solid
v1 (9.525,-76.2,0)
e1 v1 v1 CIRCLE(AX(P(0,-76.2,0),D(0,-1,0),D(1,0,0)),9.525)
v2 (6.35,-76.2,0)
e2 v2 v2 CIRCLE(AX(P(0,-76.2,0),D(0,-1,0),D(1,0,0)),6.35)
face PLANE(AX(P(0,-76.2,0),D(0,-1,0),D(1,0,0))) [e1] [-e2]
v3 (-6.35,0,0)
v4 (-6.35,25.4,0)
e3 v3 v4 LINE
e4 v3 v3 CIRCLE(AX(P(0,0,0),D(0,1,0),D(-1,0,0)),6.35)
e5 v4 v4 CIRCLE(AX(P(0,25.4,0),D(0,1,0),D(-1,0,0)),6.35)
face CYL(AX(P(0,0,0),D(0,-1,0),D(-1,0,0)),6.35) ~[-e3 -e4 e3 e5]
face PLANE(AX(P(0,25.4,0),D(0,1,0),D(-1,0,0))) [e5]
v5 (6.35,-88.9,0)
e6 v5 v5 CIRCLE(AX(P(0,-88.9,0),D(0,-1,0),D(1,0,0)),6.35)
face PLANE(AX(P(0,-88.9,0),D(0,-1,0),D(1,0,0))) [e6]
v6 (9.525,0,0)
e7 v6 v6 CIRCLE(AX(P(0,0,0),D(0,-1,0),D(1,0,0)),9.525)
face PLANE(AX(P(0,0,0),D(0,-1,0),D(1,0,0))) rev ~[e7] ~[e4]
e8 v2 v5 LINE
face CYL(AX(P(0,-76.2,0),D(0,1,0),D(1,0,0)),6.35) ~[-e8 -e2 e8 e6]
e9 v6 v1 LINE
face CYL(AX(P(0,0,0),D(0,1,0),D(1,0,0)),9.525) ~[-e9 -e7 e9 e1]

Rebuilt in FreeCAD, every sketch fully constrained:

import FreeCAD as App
import Part
import Sketcher
from FreeCAD import Vector
Q = App.Units.Quantity

doc = App.newDocument("Part")
body = doc.addObject("PartDesign::Body", "Body")

# Sketch on XZ plane
sketch1 = body.newObject("Sketcher::SketchObject", "Sketch")
sketch1.AttachmentSupport = (doc.getObject("XZ_Plane"), [""])
sketch1.MapMode = "FlatFace"
sketch1.addGeometry(Part.Circle(Vector(0, 0, 0), Vector(0, 0, 1), 10), False)
sketch1.addConstraint(Sketcher.Constraint("Coincident", 0, 3, -1, 1))
sketch1.addConstraint(Sketcher.Constraint("Diameter", 0, Q("0.75 in")))
pad1 = body.newObject("PartDesign::Pad", "Pad")
pad1.Profile = sketch1
pad1.Length = Q("3 in")

# Sketch on XZ plane
sketch2 = body.newObject("Sketcher::SketchObject", "Sketch001")
sketch2.AttachmentSupport = (doc.getObject("XZ_Plane"), [""])
sketch2.MapMode = "FlatFace"
sketch2.AttachmentOffset = App.Placement(Vector(0, 0, 3 * 25.4), App.Rotation())
sketch2.addGeometry(Part.Circle(Vector(0, 0, 0), Vector(0, 0, 1), 6), False)
sketch2.addConstraint(Sketcher.Constraint("Coincident", 0, 3, -1, 1))
sketch2.addConstraint(Sketcher.Constraint("Diameter", 0, Q("0.5 in")))
pad2 = body.newObject("PartDesign::Pad", "Pad001")
pad2.Profile = sketch2
pad2.Length = Q("0.5 in")

# Sketch on XZ plane
sketch3 = body.newObject("Sketcher::SketchObject", "Sketch002")
sketch3.AttachmentSupport = (doc.getObject("XZ_Plane"), [""])
sketch3.MapMode = "FlatFace"
sketch3.addGeometry(Part.Circle(Vector(0, 0, 0), Vector(0, 0, 1), 6), False)
sketch3.addConstraint(Sketcher.Constraint("Coincident", 0, 3, -1, 1))
sketch3.addConstraint(Sketcher.Constraint("Diameter", 0, Q("0.5 in")))
pad3 = body.newObject("PartDesign::Pad", "Pad002")
pad3.Profile = sketch3
pad3.Length = Q("1 in")
pad3.Reversed = True

doc.recompute()
